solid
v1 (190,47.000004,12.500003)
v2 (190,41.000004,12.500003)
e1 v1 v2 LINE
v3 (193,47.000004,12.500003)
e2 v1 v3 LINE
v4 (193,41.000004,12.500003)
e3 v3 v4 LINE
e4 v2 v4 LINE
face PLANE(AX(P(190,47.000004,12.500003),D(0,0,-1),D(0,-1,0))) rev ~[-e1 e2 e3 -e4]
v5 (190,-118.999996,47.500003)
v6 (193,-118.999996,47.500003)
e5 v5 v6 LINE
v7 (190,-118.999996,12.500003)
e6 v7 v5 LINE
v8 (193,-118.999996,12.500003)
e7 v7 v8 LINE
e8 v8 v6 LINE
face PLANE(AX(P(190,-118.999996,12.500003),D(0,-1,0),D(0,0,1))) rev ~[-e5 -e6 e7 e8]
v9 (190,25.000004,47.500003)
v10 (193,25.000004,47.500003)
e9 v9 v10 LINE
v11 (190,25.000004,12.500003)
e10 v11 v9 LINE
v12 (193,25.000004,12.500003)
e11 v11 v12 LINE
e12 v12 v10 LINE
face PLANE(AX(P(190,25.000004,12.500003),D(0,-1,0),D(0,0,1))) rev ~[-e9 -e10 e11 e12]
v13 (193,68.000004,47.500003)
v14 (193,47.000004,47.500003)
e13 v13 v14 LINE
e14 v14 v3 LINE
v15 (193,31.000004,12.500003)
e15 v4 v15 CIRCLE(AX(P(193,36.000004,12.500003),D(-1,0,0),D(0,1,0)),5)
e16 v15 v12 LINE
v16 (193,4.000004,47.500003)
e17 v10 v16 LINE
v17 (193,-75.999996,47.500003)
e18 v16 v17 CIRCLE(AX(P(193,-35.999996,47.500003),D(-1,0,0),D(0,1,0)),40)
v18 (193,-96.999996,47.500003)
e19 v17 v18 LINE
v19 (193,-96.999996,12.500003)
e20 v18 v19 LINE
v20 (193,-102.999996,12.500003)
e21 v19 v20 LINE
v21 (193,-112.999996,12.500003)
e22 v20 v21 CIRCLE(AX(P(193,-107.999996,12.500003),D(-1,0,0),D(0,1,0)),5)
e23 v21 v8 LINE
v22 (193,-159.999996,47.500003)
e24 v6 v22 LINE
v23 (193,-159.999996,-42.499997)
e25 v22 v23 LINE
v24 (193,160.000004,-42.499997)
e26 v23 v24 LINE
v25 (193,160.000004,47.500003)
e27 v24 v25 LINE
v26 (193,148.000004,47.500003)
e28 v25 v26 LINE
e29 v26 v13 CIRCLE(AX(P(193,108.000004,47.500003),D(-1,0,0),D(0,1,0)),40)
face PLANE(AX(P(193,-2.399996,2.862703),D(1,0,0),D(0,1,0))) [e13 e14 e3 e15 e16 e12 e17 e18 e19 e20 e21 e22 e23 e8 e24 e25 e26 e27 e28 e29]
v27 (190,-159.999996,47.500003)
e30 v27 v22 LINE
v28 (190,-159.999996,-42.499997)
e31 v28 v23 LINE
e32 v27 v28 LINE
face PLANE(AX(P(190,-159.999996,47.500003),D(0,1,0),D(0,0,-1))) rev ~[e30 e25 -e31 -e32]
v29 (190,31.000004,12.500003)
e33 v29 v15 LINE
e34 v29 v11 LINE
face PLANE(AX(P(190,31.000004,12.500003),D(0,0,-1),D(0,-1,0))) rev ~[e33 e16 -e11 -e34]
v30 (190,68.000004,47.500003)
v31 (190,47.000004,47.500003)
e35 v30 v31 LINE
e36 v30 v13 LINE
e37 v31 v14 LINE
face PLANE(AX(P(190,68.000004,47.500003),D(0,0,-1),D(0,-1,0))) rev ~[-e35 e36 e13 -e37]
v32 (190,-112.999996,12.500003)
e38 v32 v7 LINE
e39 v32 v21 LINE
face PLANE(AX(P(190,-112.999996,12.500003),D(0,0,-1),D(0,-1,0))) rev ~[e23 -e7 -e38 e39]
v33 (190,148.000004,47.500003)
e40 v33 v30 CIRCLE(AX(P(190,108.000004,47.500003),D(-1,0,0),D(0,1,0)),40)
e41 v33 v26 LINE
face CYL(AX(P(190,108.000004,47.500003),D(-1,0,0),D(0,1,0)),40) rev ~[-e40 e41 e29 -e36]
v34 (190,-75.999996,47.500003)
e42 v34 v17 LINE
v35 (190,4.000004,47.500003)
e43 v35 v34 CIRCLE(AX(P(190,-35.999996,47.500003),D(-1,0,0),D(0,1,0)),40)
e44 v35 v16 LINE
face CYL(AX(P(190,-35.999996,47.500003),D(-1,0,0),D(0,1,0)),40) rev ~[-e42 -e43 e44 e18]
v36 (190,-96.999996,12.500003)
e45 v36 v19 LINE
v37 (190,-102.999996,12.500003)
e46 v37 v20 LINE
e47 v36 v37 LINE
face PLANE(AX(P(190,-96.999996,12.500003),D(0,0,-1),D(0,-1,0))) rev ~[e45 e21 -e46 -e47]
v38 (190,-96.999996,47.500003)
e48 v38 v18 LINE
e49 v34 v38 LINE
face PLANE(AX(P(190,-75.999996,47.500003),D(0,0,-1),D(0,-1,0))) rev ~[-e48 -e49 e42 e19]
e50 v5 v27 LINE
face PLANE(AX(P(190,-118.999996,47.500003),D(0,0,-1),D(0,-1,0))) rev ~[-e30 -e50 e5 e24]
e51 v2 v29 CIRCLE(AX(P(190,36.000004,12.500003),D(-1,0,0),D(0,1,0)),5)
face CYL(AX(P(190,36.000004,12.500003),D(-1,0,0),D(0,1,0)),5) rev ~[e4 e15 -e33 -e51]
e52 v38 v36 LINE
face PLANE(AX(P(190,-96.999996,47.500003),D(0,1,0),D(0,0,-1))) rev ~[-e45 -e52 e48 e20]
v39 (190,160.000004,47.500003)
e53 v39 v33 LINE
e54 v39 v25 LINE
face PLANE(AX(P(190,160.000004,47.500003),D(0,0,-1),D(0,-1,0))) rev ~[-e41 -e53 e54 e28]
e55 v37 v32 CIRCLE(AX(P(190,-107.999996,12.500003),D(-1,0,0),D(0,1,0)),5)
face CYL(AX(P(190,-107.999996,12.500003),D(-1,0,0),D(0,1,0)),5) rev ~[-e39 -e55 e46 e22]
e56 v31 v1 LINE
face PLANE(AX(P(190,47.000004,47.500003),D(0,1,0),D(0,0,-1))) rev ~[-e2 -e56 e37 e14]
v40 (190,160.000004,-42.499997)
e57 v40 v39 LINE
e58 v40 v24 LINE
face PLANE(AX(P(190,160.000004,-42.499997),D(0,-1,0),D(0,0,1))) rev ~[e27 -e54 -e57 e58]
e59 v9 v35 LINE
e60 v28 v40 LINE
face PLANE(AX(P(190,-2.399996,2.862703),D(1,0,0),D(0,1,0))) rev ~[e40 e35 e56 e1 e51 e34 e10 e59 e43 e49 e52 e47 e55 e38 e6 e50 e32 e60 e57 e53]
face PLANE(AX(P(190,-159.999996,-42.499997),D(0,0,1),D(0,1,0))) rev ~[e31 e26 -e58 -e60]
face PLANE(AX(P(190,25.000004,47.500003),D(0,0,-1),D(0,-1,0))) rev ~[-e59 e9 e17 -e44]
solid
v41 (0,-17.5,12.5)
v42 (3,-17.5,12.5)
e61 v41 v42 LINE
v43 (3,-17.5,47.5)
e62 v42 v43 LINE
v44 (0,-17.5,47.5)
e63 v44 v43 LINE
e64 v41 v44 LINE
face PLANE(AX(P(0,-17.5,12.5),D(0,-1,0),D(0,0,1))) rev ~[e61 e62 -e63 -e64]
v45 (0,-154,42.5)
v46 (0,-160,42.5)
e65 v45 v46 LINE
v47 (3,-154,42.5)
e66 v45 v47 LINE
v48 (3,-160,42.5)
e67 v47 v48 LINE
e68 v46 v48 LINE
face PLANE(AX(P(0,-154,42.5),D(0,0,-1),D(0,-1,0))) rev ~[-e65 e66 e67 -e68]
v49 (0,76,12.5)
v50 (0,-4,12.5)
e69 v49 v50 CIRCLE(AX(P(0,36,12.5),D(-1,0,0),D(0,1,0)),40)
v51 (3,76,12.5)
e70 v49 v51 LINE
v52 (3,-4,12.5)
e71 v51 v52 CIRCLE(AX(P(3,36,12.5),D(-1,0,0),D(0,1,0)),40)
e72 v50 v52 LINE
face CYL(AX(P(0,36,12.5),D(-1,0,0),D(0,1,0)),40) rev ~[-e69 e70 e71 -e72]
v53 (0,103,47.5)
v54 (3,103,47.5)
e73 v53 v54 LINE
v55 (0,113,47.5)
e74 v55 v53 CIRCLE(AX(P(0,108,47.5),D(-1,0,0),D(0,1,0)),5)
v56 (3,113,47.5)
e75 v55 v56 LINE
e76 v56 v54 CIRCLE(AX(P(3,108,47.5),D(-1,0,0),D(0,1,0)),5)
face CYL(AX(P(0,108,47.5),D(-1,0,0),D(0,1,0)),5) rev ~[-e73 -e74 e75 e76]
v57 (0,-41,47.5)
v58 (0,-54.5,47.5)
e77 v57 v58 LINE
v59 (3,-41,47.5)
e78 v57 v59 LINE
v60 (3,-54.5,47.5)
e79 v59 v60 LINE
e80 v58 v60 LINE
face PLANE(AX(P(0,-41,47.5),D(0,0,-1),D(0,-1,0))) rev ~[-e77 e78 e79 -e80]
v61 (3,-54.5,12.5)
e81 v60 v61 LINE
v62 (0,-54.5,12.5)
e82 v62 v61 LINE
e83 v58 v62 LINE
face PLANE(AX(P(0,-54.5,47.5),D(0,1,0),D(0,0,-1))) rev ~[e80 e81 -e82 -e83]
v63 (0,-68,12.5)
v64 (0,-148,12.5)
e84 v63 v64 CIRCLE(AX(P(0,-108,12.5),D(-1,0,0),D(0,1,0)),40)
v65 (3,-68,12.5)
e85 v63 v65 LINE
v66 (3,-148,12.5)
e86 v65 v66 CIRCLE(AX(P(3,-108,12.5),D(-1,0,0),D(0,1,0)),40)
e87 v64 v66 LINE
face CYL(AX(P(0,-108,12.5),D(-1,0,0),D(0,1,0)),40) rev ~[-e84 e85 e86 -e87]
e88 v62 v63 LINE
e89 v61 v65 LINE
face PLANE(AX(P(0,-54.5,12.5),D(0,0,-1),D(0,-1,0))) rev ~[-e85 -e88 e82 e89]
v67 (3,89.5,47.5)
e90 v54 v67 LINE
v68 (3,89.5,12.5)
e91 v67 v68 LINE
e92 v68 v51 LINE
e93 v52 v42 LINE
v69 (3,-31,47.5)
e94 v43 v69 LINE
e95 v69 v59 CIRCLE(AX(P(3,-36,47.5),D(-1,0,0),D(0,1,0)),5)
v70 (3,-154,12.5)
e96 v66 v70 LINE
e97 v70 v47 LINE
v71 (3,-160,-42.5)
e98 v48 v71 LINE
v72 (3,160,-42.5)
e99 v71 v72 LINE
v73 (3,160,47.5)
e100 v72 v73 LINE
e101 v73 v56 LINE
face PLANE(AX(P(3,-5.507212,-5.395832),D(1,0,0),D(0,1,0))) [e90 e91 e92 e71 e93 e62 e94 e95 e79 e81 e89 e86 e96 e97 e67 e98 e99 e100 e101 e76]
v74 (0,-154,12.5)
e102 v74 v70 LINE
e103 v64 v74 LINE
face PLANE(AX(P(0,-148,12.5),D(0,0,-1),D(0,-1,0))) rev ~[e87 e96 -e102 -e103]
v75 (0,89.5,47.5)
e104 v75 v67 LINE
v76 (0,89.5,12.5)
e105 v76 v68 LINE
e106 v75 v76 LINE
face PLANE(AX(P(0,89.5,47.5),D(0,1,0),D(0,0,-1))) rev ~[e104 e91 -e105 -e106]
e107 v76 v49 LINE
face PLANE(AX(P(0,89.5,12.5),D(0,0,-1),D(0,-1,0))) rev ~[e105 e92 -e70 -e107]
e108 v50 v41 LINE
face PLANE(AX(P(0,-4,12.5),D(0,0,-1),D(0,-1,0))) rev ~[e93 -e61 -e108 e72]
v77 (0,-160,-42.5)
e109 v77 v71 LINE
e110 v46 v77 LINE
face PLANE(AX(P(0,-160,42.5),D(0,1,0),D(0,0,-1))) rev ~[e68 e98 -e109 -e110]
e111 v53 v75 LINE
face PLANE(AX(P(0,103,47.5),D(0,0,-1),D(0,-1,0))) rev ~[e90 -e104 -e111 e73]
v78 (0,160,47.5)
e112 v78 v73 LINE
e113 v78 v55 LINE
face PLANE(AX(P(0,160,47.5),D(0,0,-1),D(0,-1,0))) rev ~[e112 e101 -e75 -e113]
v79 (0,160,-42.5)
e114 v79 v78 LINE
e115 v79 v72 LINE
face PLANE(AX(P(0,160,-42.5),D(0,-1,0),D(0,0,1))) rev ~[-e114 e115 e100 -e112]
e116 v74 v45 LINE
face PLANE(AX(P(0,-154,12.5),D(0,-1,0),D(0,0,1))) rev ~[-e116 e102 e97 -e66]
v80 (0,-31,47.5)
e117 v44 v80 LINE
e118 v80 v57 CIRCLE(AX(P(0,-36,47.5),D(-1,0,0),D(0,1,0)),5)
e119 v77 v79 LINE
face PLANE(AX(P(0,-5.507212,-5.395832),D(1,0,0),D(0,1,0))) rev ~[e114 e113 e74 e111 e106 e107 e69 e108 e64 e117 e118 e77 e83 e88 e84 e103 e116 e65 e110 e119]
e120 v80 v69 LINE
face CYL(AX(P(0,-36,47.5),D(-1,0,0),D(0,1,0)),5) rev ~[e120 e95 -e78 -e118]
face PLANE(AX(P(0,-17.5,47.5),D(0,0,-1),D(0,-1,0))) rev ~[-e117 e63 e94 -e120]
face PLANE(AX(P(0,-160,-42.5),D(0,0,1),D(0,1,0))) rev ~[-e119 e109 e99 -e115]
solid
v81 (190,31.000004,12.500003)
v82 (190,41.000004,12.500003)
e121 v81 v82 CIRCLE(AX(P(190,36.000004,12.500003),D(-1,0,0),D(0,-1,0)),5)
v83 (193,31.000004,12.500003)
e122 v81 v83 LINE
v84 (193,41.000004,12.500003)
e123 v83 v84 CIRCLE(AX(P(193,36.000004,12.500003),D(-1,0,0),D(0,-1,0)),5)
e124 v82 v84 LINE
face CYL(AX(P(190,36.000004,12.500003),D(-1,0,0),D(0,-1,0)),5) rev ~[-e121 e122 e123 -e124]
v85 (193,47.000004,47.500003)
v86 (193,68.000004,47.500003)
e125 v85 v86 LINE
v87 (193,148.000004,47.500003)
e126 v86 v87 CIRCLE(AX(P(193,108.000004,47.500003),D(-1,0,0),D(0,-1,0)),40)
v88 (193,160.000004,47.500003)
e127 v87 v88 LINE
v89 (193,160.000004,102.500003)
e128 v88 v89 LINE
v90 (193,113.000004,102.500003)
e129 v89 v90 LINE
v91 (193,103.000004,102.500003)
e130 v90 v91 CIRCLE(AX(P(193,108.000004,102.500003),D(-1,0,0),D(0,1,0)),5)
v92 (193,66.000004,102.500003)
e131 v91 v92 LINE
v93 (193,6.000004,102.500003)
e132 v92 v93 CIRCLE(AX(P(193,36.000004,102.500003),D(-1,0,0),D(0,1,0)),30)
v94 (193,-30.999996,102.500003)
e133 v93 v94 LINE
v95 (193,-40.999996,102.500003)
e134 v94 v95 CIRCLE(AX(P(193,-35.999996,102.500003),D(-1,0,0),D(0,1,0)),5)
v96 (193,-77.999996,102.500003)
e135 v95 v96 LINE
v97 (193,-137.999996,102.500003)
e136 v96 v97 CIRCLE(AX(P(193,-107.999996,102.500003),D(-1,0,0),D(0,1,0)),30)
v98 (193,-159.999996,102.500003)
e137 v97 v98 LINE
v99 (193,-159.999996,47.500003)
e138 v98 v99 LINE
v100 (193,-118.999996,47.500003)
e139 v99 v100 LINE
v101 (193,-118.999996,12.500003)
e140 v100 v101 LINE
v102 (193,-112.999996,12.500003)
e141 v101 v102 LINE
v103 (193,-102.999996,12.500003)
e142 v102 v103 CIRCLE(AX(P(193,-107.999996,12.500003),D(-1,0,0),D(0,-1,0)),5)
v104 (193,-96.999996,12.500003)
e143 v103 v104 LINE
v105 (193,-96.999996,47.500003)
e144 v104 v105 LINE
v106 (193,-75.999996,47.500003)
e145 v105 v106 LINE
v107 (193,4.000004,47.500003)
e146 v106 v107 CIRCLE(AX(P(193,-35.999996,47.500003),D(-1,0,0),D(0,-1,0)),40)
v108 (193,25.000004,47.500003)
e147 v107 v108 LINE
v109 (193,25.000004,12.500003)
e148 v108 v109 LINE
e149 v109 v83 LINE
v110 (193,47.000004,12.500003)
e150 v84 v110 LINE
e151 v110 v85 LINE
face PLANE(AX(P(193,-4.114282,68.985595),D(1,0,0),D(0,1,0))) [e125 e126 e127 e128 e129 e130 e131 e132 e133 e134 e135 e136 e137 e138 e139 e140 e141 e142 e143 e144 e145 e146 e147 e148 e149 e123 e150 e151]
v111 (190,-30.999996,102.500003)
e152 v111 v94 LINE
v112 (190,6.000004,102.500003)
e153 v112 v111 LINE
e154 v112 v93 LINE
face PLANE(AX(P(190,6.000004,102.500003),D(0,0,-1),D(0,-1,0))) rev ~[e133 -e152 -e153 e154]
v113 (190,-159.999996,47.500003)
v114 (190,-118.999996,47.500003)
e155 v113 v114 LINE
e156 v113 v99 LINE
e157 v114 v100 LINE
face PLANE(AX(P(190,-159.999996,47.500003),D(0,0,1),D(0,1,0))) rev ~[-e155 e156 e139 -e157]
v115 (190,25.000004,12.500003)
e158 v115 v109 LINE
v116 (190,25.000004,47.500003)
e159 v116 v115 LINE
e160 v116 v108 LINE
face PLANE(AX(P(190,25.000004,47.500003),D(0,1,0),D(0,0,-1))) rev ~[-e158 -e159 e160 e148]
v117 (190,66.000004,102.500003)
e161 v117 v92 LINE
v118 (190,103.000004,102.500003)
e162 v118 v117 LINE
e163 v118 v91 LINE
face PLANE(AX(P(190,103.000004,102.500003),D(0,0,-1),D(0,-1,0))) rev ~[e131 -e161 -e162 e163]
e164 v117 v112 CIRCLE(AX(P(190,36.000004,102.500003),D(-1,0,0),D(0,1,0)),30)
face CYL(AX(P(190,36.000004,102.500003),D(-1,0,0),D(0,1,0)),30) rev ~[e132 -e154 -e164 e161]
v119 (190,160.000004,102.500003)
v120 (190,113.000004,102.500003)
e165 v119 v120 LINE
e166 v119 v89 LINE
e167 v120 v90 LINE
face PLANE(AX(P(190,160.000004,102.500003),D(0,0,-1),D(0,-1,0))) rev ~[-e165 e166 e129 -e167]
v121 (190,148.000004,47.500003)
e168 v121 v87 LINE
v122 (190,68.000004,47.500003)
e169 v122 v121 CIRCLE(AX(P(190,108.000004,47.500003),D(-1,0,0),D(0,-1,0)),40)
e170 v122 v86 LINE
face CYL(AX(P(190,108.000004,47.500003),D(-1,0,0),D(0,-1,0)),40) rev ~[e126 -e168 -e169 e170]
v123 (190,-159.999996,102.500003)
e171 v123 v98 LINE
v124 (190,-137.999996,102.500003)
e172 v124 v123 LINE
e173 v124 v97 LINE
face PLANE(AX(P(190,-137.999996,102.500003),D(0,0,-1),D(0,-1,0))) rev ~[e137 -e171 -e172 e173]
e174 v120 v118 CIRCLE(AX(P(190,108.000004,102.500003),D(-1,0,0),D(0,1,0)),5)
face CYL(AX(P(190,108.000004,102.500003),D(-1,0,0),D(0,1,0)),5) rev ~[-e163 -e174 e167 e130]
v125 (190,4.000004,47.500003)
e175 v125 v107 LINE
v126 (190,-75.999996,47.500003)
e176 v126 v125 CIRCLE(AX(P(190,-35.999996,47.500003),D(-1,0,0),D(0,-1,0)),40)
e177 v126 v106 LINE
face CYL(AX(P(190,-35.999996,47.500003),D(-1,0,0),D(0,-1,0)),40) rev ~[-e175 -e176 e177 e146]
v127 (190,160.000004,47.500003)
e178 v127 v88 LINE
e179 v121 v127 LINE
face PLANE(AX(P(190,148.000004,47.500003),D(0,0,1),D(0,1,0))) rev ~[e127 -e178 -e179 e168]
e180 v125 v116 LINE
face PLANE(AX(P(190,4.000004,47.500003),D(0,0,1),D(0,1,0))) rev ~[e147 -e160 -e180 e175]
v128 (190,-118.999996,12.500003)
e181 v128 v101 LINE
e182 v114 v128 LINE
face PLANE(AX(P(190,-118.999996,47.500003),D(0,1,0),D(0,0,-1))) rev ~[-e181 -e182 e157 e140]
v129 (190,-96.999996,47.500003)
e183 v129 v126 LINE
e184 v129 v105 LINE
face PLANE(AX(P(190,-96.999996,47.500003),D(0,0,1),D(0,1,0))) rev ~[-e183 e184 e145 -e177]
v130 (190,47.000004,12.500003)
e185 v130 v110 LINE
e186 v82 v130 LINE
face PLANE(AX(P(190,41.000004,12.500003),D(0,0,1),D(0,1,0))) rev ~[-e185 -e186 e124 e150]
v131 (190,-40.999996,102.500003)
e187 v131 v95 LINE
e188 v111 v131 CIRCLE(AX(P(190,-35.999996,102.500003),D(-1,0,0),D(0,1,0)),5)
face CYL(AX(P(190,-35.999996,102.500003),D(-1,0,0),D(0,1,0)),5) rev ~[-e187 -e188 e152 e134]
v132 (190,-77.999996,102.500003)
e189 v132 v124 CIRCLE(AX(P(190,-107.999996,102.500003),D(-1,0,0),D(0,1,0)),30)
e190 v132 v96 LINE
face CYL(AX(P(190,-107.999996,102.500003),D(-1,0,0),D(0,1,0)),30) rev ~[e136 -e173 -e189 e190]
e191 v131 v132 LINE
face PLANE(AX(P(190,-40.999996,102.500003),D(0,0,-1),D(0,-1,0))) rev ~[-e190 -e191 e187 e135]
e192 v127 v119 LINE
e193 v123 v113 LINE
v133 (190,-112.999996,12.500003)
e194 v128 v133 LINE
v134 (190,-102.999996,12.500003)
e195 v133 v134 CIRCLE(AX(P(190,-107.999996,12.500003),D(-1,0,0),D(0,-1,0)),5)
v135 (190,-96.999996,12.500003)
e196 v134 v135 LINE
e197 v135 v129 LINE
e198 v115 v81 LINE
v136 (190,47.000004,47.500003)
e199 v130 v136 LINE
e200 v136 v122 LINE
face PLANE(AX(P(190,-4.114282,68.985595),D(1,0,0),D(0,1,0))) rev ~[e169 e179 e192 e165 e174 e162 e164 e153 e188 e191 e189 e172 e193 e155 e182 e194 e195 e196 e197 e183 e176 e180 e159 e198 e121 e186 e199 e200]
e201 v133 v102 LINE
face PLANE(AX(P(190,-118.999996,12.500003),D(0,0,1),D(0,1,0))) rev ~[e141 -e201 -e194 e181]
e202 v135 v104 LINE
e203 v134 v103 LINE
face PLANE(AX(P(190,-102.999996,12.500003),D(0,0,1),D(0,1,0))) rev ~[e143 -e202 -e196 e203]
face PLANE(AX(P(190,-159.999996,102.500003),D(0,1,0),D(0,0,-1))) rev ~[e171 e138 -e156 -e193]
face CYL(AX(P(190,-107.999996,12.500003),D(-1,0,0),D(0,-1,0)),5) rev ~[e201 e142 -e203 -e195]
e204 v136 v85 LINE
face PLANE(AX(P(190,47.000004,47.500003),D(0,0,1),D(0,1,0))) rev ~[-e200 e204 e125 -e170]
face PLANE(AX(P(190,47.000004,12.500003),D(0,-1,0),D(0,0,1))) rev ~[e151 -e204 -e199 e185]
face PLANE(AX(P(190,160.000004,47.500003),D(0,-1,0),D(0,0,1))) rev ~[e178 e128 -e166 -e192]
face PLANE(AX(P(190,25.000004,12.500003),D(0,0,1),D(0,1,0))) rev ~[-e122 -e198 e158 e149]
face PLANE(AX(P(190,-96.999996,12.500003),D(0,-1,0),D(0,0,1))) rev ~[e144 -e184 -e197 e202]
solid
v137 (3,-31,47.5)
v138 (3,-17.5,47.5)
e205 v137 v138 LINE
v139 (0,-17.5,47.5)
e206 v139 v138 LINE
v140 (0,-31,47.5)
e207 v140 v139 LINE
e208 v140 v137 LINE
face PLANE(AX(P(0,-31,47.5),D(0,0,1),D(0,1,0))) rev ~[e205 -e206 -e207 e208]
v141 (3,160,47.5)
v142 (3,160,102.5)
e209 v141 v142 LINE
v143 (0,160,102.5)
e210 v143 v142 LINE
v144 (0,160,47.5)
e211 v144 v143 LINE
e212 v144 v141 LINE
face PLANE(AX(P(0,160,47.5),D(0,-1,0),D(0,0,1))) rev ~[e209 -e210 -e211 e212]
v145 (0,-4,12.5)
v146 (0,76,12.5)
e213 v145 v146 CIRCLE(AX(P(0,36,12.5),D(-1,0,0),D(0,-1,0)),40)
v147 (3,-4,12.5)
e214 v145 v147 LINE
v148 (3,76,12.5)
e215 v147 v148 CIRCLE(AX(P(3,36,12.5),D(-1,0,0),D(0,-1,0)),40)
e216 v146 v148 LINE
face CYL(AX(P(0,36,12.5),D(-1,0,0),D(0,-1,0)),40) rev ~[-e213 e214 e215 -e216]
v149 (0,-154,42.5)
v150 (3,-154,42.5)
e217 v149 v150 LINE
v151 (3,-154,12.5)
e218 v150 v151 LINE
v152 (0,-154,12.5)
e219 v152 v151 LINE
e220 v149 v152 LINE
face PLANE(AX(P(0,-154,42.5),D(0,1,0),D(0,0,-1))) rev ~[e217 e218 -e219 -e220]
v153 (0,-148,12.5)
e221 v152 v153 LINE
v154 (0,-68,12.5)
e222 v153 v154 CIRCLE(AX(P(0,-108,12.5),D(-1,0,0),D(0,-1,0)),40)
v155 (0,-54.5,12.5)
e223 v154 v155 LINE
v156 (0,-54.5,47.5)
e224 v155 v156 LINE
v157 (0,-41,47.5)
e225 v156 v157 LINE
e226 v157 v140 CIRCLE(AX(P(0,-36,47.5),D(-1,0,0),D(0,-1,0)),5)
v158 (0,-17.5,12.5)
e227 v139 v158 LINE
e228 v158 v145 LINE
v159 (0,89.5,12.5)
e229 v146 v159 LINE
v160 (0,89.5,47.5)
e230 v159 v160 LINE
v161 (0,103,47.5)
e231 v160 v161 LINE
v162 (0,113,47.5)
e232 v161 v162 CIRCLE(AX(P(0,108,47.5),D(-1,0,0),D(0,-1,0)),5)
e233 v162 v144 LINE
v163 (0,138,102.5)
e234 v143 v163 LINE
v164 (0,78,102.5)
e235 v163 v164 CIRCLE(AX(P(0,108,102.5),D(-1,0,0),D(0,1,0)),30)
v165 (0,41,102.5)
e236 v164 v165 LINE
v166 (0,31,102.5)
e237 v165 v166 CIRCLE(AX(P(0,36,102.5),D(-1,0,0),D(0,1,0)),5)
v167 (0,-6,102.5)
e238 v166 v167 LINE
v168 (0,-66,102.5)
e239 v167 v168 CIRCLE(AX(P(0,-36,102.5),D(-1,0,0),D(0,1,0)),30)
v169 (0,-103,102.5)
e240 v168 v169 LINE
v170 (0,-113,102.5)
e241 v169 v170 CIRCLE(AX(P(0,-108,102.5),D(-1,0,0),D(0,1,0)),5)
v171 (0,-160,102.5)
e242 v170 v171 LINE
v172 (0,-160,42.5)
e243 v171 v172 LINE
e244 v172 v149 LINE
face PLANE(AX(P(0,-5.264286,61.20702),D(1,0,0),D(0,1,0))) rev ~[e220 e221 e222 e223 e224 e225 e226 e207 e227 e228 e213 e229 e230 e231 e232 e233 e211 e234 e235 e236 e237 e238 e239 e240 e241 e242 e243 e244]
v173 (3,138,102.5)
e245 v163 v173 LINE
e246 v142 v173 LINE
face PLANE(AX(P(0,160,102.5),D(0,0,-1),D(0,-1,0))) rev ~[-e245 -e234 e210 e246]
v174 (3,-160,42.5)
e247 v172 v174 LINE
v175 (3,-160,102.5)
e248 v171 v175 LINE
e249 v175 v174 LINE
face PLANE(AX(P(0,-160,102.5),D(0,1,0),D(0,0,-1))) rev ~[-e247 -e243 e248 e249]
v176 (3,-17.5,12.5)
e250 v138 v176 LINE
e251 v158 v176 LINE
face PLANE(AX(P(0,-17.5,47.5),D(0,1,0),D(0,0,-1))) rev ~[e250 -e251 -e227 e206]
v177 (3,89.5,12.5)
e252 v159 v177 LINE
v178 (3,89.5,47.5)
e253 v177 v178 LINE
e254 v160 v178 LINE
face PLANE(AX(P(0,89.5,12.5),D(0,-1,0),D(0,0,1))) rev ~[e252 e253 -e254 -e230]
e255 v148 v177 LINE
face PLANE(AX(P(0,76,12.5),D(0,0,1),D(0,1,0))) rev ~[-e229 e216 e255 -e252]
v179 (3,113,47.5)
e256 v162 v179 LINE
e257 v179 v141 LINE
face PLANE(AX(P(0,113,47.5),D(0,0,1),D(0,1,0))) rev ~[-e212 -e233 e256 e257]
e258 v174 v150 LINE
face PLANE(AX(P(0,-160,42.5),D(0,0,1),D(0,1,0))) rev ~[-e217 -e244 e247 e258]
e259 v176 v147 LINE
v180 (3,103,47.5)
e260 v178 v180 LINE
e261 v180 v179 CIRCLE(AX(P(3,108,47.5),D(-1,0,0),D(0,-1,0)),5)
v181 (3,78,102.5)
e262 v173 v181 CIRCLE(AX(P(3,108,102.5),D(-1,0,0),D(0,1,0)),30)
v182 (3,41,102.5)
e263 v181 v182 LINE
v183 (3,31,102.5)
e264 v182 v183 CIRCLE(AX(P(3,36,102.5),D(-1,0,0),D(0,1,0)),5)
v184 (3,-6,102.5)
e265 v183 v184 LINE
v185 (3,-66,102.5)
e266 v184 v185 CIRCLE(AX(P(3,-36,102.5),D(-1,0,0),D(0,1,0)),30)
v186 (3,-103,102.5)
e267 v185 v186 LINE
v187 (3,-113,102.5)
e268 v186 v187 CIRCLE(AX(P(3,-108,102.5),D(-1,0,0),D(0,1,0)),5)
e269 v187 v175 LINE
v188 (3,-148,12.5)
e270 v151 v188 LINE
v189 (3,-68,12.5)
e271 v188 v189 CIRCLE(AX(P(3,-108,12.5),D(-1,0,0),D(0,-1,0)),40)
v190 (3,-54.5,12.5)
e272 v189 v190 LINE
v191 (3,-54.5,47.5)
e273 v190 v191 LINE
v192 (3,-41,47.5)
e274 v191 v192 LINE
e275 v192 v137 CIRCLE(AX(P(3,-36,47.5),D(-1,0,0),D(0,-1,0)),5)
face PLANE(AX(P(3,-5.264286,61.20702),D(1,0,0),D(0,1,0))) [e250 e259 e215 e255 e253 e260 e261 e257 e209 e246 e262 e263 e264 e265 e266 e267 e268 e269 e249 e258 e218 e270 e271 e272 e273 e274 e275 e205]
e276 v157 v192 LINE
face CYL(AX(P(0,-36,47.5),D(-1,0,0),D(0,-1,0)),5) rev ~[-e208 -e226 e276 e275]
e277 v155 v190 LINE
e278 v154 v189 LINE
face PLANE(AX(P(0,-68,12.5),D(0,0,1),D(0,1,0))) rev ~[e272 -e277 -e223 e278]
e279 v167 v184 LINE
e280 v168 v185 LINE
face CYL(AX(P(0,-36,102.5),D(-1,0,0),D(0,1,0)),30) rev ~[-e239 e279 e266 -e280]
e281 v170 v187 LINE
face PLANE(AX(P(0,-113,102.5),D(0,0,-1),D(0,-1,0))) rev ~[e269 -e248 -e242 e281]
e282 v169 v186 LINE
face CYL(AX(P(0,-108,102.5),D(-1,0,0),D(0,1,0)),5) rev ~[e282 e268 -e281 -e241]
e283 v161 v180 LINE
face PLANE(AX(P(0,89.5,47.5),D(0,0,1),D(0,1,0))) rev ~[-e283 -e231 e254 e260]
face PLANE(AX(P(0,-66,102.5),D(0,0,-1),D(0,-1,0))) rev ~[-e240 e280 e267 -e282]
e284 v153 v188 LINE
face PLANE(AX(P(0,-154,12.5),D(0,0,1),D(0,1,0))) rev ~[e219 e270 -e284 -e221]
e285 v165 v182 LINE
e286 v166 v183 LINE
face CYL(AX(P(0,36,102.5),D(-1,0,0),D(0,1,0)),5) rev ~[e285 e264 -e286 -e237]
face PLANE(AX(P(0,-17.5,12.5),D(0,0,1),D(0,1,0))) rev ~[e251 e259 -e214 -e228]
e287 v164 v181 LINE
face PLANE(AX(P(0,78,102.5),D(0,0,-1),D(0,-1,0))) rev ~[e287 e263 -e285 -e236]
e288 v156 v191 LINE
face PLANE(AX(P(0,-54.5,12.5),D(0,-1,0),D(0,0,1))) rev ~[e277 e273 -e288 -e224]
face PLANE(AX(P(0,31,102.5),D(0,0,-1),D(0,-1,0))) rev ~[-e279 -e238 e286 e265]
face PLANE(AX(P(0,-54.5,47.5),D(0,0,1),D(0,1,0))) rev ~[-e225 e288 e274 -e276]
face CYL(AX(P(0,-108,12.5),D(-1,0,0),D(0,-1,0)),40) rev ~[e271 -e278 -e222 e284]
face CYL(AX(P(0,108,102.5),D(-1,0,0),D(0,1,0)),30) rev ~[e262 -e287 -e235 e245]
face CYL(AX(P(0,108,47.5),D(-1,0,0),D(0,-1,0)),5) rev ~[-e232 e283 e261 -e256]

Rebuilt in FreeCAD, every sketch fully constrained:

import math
import FreeCAD as App
import Part
import Sketcher

V = App.Vector

doc = App.newDocument("Part")
params = doc.addObject("Spreadsheet::Sheet", "Params")
for row, (alias, value) in enumerate([
    ("sketch1_radius", "5 mm"),
    ("sketch1_radius2", "40 mm"),
    ("sketch1_width", "320 mm"),
    ("sketch1_width2", "47 mm"),
    ("sketch1_width3", "6 mm"),
    ("pad1_length", "3 mm"),
    ("sketch2_radius", "30 mm"),
    ("sketch2_radius2", "5 mm"),
    ("sketch2_radius3", "40 mm"),
    ("sketch2_width", "47 mm"),
    ("sketch2_width2", "37 mm"),
    ("pad2_length", "3 mm"),
    ("sketch3_radius", "40 mm"),
    ("sketch3_radius2", "5 mm"),
    ("sketch3_width", "320 mm"),
    ("sketch3_width2", "12 mm"),
    ("sketch3_width3", "21 mm"),
    ("pad3_length", "3 mm"),
    ("sketch4_radius", "5 mm"),
    ("sketch4_radius2", "30 mm"),
    ("sketch4_radius3", "40 mm"),
    ("sketch4_width", "12 mm"),
    ("sketch4_width2", "37 mm"),
    ("pad4_length", "3 mm"),
], start=1):
    params.set(f"A{row}", alias)
    params.set(f"B{row}", "=" + value)
    params.setAlias(f"B{row}", alias)

body = doc.addObject("PartDesign::Body", "Body")

sketch1 = body.newObject("Sketcher::SketchObject", "Sketch")
sketch1.AttachmentSupport = (doc.getObject("YZ_Plane"), [""])
sketch1.MapMode = "FlatFace"
sketch1.addGeometry([
    Part.LineSegment(V(-160, -42, 0), V(160, -42, 0)),
    Part.LineSegment(V(160, -42, 0), V(160, 48, 0)),
    Part.LineSegment(V(160, 48, 0), V(113, 48, 0)),
    Part.ArcOfCircle(Part.Circle(V(108, 48, 0), V(0, 0, 1), 5), math.radians(180), math.radians(360)),
    Part.LineSegment(V(103, 48, 0), V(90, 48, 0)),
    Part.LineSegment(V(90, 48, 0), V(90, 12, 0)),
    Part.LineSegment(V(90, 12, 0), V(76, 12, 0)),
    Part.ArcOfCircle(Part.Circle(V(36, 12, 0), V(0, 0, 1), 40), math.radians(180), math.radians(360)),
    Part.LineSegment(V(-4, 12, 0), V(-18, 12, 0)),
    Part.LineSegment(V(-18, 12, 0), V(-18, 48, 0)),
    Part.LineSegment(V(-18, 48, 0), V(-31, 48, 0)),
    Part.ArcOfCircle(Part.Circle(V(-36, 48, 0), V(0, 0, 1), 5), math.radians(180), math.radians(360)),
    Part.LineSegment(V(-41, 48, 0), V(-54, 48, 0)),
    Part.LineSegment(V(-54, 48, 0), V(-54, 12, 0)),
    Part.LineSegment(V(-54, 12, 0), V(-68, 12, 0)),
    Part.ArcOfCircle(Part.Circle(V(-108, 12, 0), V(0, 0, 1), 40), math.radians(180), math.radians(360)),
    Part.LineSegment(V(-148, 12, 0), V(-154, 12, 0)),
    Part.LineSegment(V(-154, 12, 0), V(-154, 42, 0)),
    Part.LineSegment(V(-154, 42, 0), V(-160, 42, 0)),
    Part.LineSegment(V(-160, 42, 0), V(-160, -42, 0)),
], False)
sketch1.addConstraint([
    Sketcher.Constraint("Coincident", 0, 2, 1, 1),
    Sketcher.Constraint("Coincident", 1, 2, 2, 1),
    Sketcher.Constraint("Coincident", 2, 2, 3, 2),
    Sketcher.Constraint("Coincident", 3, 1, 4, 1),
    Sketcher.Constraint("Coincident", 4, 2, 5, 1),
    Sketcher.Constraint("Coincident", 5, 2, 6, 1),
    Sketcher.Constraint("Coincident", 6, 2, 7, 2),
    Sketcher.Constraint("Coincident", 7, 1, 8, 1),
    Sketcher.Constraint("Coincident", 8, 2, 9, 1),
    Sketcher.Constraint("Coincident", 9, 2, 10, 1),
    Sketcher.Constraint("Coincident", 10, 2, 11, 2),
    Sketcher.Constraint("Coincident", 11, 1, 12, 1),
    Sketcher.Constraint("Coincident", 12, 2, 13, 1),
    Sketcher.Constraint("Coincident", 13, 2, 14, 1),
    Sketcher.Constraint("Coincident", 14, 2, 15, 2),
    Sketcher.Constraint("Coincident", 15, 1, 16, 1),
    Sketcher.Constraint("Coincident", 16, 2, 17, 1),
    Sketcher.Constraint("Coincident", 17, 2, 18, 1),
    Sketcher.Constraint("Coincident", 18, 2, 19, 1),
    Sketcher.Constraint("Coincident", 19, 2, 0, 1),
    Sketcher.Constraint("Horizontal", 0),
    Sketcher.Constraint("Vertical", 1),
    Sketcher.Constraint("Horizontal", 2),
    Sketcher.Constraint("Horizontal", 4),
    Sketcher.Constraint("Vertical", 5),
    Sketcher.Constraint("Horizontal", 6),
    Sketcher.Constraint("Horizontal", 8),
    Sketcher.Constraint("Vertical", 9),
    Sketcher.Constraint("Horizontal", 10),
    Sketcher.Constraint("Horizontal", 12),
    Sketcher.Constraint("Vertical", 13),
    Sketcher.Constraint("Horizontal", 14),
    Sketcher.Constraint("Horizontal", 16),
    Sketcher.Constraint("Vertical", 17),
    Sketcher.Constraint("Horizontal", 18),
    Sketcher.Constraint("Vertical", 19),
    Sketcher.Constraint("Equal", 3, 11),
    Sketcher.Constraint("Equal", 7, 15),
    Sketcher.Constraint("Symmetric", 0, 2, 18, 2, -1, 1),
    Sketcher.Constraint("Horizontal", 3, 3, 11, 3),
    Sketcher.Constraint("Horizontal", 7, 3, 15, 3),
    Sketcher.Constraint("Horizontal", 11, 3, 1, 2),
    Sketcher.Constraint("Horizontal", 2, 2, 3, 1),
    Sketcher.Constraint("Horizontal", 15, 3, 5, 2),
    Sketcher.Constraint("Horizontal", 6, 2, 7, 1),
    Sketcher.Constraint("Horizontal", 4, 2, 9, 2),
    Sketcher.Constraint("Horizontal", 10, 2, 11, 1),
    Sketcher.Constraint("Horizontal", 8, 2, 13, 2),
    Sketcher.Constraint("Horizontal", 14, 2, 15, 1),
    Sketcher.Constraint("Equal", 4, 6),
    Sketcher.Constraint("Equal", 6, 8),
    Sketcher.Constraint("Equal", 8, 10),
    Sketcher.Constraint("Equal", 10, 12),
    Sketcher.Constraint("Equal", 12, 14),
    Sketcher.Constraint("Equal", 16, 18),
    Sketcher.Constraint("Radius", 3, 5.0),
    Sketcher.Constraint("Radius", 7, 40.0),
    Sketcher.Constraint("DistanceX", 0, 1, 0, 2, 320.0),
    Sketcher.Constraint("DistanceX", 2, 2, 2, 1, 47.0),
    Sketcher.Constraint("DistanceX", 16, 2, 16, 1, 6.0),
    Sketcher.Constraint("DistanceY", 1, 1, 1, 2, 90.0),
    Sketcher.Constraint("DistanceY", 5, 2, 5, 1, 35.0),
    Sketcher.Constraint("DistanceY", 17, 1, 17, 2, 30.0),
])
sketch1.setExpression("Constraints[55]", "Params.sketch1_radius")
sketch1.setExpression("Constraints[56]", "Params.sketch1_radius2")
sketch1.setExpression("Constraints[57]", "Params.sketch1_width")
sketch1.setExpression("Constraints[58]", "Params.sketch1_width2")
sketch1.setExpression("Constraints[59]", "Params.sketch1_width3")
pad1 = body.newObject("PartDesign::Pad", "Pad")
pad1.Profile = sketch1
pad1.setExpression("Length", "Params.pad1_length")
body2 = doc.addObject("PartDesign::Body", "Body001")

sketch2 = body2.newObject("Sketcher::SketchObject", "Sketch001")
sketch2.AttachmentSupport = (doc.getObject("YZ_Plane001"), [""])
sketch2.MapMode = "FlatFace"
sketch2.addGeometry([
    Part.LineSegment(V(113, 48, 0), V(160, 48, 0)),
    Part.LineSegment(V(160, 48, 0), V(160, 102, 0)),
    Part.LineSegment(V(160, 102, 0), V(138, 102, 0)),
    Part.ArcOfCircle(Part.Circle(V(108, 102, 0), V(0, 0, 1), 30), math.radians(180), math.radians(360)),
    Part.LineSegment(V(78, 102, 0), V(41, 102, 0)),
    Part.ArcOfCircle(Part.Circle(V(36, 102, 0), V(0, 0, 1), 5), math.radians(180), math.radians(360)),
    Part.LineSegment(V(31, 102, 0), V(-6, 102, 0)),
    Part.ArcOfCircle(Part.Circle(V(-36, 102, 0), V(0, 0, 1), 30), math.radians(180), math.radians(360)),
    Part.LineSegment(V(-66, 102, 0), V(-103, 102, 0)),
    Part.ArcOfCircle(Part.Circle(V(-108, 102, 0), V(0, 0, 1), 5), math.radians(180), math.radians(360)),
    Part.LineSegment(V(-113, 102, 0), V(-160, 102, 0)),
    Part.LineSegment(V(-160, 102, 0), V(-160, 42, 0)),
    Part.LineSegment(V(-160, 42, 0), V(-154, 42, 0)),
    Part.LineSegment(V(-154, 42, 0), V(-154, 12, 0)),
    Part.LineSegment(V(-154, 12, 0), V(-148, 12, 0)),
    Part.ArcOfCircle(Part.Circle(V(-108, 12, 0), V(0, 0, 1), 40), math.radians(0), math.radians(180)),
    Part.LineSegment(V(-68, 12, 0), V(-54, 12, 0)),
    Part.LineSegment(V(-54, 12, 0), V(-54, 48, 0)),
    Part.LineSegment(V(-54, 48, 0), V(-41, 48, 0)),
    Part.ArcOfCircle(Part.Circle(V(-36, 48, 0), V(0, 0, 1), 5), math.radians(0), math.radians(180)),
    Part.LineSegment(V(-31, 48, 0), V(-18, 48, 0)),
    Part.LineSegment(V(-18, 48, 0), V(-18, 12, 0)),
    Part.LineSegment(V(-18, 12, 0), V(-4, 12, 0)),
    Part.ArcOfCircle(Part.Circle(V(36, 12, 0), V(0, 0, 1), 40), math.radians(0), math.radians(180)),
    Part.LineSegment(V(76, 12, 0), V(90, 12, 0)),
    Part.LineSegment(V(90, 12, 0), V(90, 48, 0)),
    Part.LineSegment(V(90, 48, 0), V(103, 48, 0)),
    Part.ArcOfCircle(Part.Circle(V(108, 48, 0), V(0, 0, 1), 5), math.radians(0), math.radians(180)),
], False)
sketch2.addConstraint([
    Sketcher.Constraint("Coincident", 0, 2, 1, 1),
    Sketcher.Constraint("Coincident", 1, 2, 2, 1),
    Sketcher.Constraint("Coincident", 2, 2, 3, 2),
    Sketcher.Constraint("Coincident", 3, 1, 4, 1),
    Sketcher.Constraint("Coincident", 4, 2, 5, 2),
    Sketcher.Constraint("Coincident", 5, 1, 6, 1),
    Sketcher.Constraint("Coincident", 6, 2, 7, 2),
    Sketcher.Constraint("Coincident", 7, 1, 8, 1),
    Sketcher.Constraint("Coincident", 8, 2, 9, 2),
    Sketcher.Constraint("Coincident", 9, 1, 10, 1),
    Sketcher.Constraint("Coincident", 10, 2, 11, 1),
    Sketcher.Constraint("Coincident", 11, 2, 12, 1),
    Sketcher.Constraint("Coincident", 12, 2, 13, 1),
    Sketcher.Constraint("Coincident", 13, 2, 14, 1),
    Sketcher.Constraint("Coincident", 14, 2, 15, 2),
    Sketcher.Constraint("Coincident", 15, 1, 16, 1),
    Sketcher.Constraint("Coincident", 16, 2, 17, 1),
    Sketcher.Constraint("Coincident", 17, 2, 18, 1),
    Sketcher.Constraint("Coincident", 18, 2, 19, 2),
    Sketcher.Constraint("Coincident", 19, 1, 20, 1),
    Sketcher.Constraint("Coincident", 20, 2, 21, 1),
    Sketcher.Constraint("Coincident", 21, 2, 22, 1),
    Sketcher.Constraint("Coincident", 22, 2, 23, 2),
    Sketcher.Constraint("Coincident", 23, 1, 24, 1),
    Sketcher.Constraint("Coincident", 24, 2, 25, 1),
    Sketcher.Constraint("Coincident", 25, 2, 26, 1),
    Sketcher.Constraint("Coincident", 26, 2, 27, 2),
    Sketcher.Constraint("Coincident", 27, 1, 0, 1),
    Sketcher.Constraint("Horizontal", 0),
    Sketcher.Constraint("Vertical", 1),
    Sketcher.Constraint("Horizontal", 2),
    Sketcher.Constraint("Horizontal", 4),
    Sketcher.Constraint("Horizontal", 6),
    Sketcher.Constraint("Horizontal", 8),
    Sketcher.Constraint("Horizontal", 10),
    Sketcher.Constraint("Vertical", 11),
    Sketcher.Constraint("Horizontal", 12),
    Sketcher.Constraint("Vertical", 13),
    Sketcher.Constraint("Horizontal", 14),
    Sketcher.Constraint("Horizontal", 16),
    Sketcher.Constraint("Vertical", 17),
    Sketcher.Constraint("Horizontal", 18),
    Sketcher.Constraint("Horizontal", 20),
    Sketcher.Constraint("Vertical", 21),
    Sketcher.Constraint("Horizontal", 22),
    Sketcher.Constraint("Horizontal", 24),
    Sketcher.Constraint("Vertical", 25),
    Sketcher.Constraint("Horizontal", 26),
    Sketcher.Constraint("Equal", 3, 7),
    Sketcher.Constraint("Equal", 5, 9),
    Sketcher.Constraint("Equal", 9, 19),
    Sketcher.Constraint("Equal", 15, 23),
    Sketcher.Constraint("Equal", 19, 27),
    Sketcher.Constraint("Symmetric", 5, 3, 7, 3, -2),
    Sketcher.Constraint("Symmetric", 3, 3, 9, 3, -2),
    Sketcher.Constraint("Symmetric", 1, 2, 10, 2, -2),
    Sketcher.Constraint("Horizontal", 3, 3, 5, 3),
    Sketcher.Constraint("Horizontal", 15, 3, 23, 3),
    Sketcher.Constraint("Horizontal", 19, 3, 27, 3),
    Sketcher.Constraint("Horizontal", 27, 3, 0, 2),
    Sketcher.Constraint("Horizontal", 9, 3, 1, 2),
    Sketcher.Constraint("Horizontal", 2, 2, 3, 1),
    Sketcher.Constraint("Horizontal", 4, 2, 5, 1),
    Sketcher.Constraint("Horizontal", 6, 2, 7, 1),
    Sketcher.Constraint("Horizontal", 23, 3, 13, 2),
    Sketcher.Constraint("Horizontal", 14, 2, 15, 1),
    Sketcher.Constraint("Horizontal", 0, 2, 17, 2),
    Sketcher.Constraint("Horizontal", 18, 2, 19, 1),
    Sketcher.Constraint("Horizontal", 16, 2, 21, 2),
    Sketcher.Constraint("Horizontal", 22, 2, 23, 1),
    Sketcher.Constraint("Horizontal", 20, 2, 25, 2),
    Sketcher.Constraint("Vertical", 9, 3, 15, 3),
    Sketcher.Constraint("Vertical", 7, 3, 19, 3),
    Sketcher.Constraint("Vertical", 5, 3, 23, 3),
    Sketcher.Constraint("Vertical", 3, 3, 27, 3),
    Sketcher.Constraint("Equal", 4, 6),
    Sketcher.Constraint("Equal", 12, 14),
    Sketcher.Constraint("Equal", 16, 18),
    Sketcher.Constraint("Equal", 18, 20),
    Sketcher.Constraint("Equal", 22, 24),
    Sketcher.Constraint("Radius", 3, 30.0),
    Sketcher.Constraint("Radius", 5, 5.0),
    Sketcher.Constraint("Radius", 15, 40.0),
    Sketcher.Constraint("DistanceX", 0, 1, 0, 2, 47.0),
    Sketcher.Constraint("DistanceX", 4, 2, 4, 1, 37.0),
    Sketcher.Constraint("DistanceY", 1, 1, 1, 2, 55.0),
    Sketcher.Constraint("DistanceY", 11, 2, 11, 1, 60.0),
    Sketcher.Constraint("DistanceY", 13, 2, 13, 1, 30.0),
    Sketcher.Constraint("DistanceY", -1, 1, 3, 3, 102.5),
])
sketch2.setExpression("Constraints[80]", "Params.sketch2_radius")
sketch2.setExpression("Constraints[81]", "Params.sketch2_radius2")
sketch2.setExpression("Constraints[82]", "Params.sketch2_radius3")
sketch2.setExpression("Constraints[83]", "Params.sketch2_width")
sketch2.setExpression("Constraints[84]", "Params.sketch2_width2")
pad2 = body2.newObject("PartDesign::Pad", "Pad001")
pad2.Profile = sketch2
pad2.setExpression("Length", "Params.pad2_length")
body3 = doc.addObject("PartDesign::Body", "Body002")

sketch3 = body3.newObject("Sketcher::SketchObject", "Sketch002")
sketch3.AttachmentSupport = (doc.getObject("YZ_Plane002"), [""])
sketch3.MapMode = "FlatFace"
sketch3.AttachmentOffset = App.Placement(V(0, 0, 190), App.Rotation())
sketch3.addGeometry([
    Part.LineSegment(V(-160, -42, 0), V(160, -42, 0)),
    Part.LineSegment(V(160, -42, 0), V(160, 48, 0)),
    Part.LineSegment(V(160, 48, 0), V(148, 48, 0)),
    Part.ArcOfCircle(Part.Circle(V(108, 48, 0), V(0, 0, 1), 40), math.radians(180), math.radians(360)),
    Part.LineSegment(V(68, 48, 0), V(47, 48, 0)),
    Part.LineSegment(V(47, 48, 0), V(47, 13, 0)),
    Part.LineSegment(V(47, 13, 0), V(41, 13, 0)),
    Part.ArcOfCircle(Part.Circle(V(36, 13, 0), V(0, 0, 1), 5), math.radians(180), math.radians(360)),
    Part.LineSegment(V(31, 13, 0), V(25, 13, 0)),
    Part.LineSegment(V(25, 13, 0), V(25, 48, 0)),
    Part.LineSegment(V(25, 48, 0), V(4, 48, 0)),
    Part.ArcOfCircle(Part.Circle(V(-36, 48, 0), V(0, 0, 1), 40), math.radians(180), math.radians(360)),
    Part.LineSegment(V(-76, 48, 0), V(-97, 48, 0)),
    Part.LineSegment(V(-97, 48, 0), V(-97, 13, 0)),
    Part.LineSegment(V(-97, 13, 0), V(-103, 13, 0)),
    Part.ArcOfCircle(Part.Circle(V(-108, 13, 0), V(0, 0, 1), 5), math.radians(180), math.radians(360)),
    Part.LineSegment(V(-113, 13, 0), V(-119, 13, 0)),
    Part.LineSegment(V(-119, 13, 0), V(-119, 48, 0)),
    Part.LineSegment(V(-119, 48, 0), V(-160, 48, 0)),
    Part.LineSegment(V(-160, 48, 0), V(-160, -42, 0)),
], False)
sketch3.addConstraint([
    Sketcher.Constraint("Coincident", 0, 2, 1, 1),
    Sketcher.Constraint("Coincident", 1, 2, 2, 1),
    Sketcher.Constraint("Coincident", 2, 2, 3, 2),
    Sketcher.Constraint("Coincident", 3, 1, 4, 1),
    Sketcher.Constraint("Coincident", 4, 2, 5, 1),
    Sketcher.Constraint("Coincident", 5, 2, 6, 1),
    Sketcher.Constraint("Coincident", 6, 2, 7, 2),
    Sketcher.Constraint("Coincident", 7, 1, 8, 1),
    Sketcher.Constraint("Coincident", 8, 2, 9, 1),
    Sketcher.Constraint("Coincident", 9, 2, 10, 1),
    Sketcher.Constraint("Coincident", 10, 2, 11, 2),
    Sketcher.Constraint("Coincident", 11, 1, 12, 1),
    Sketcher.Constraint("Coincident", 12, 2, 13, 1),
    Sketcher.Constraint("Coincident", 13, 2, 14, 1),
    Sketcher.Constraint("Coincident", 14, 2, 15, 2),
    Sketcher.Constraint("Coincident", 15, 1, 16, 1),
    Sketcher.Constraint("Coincident", 16, 2, 17, 1),
    Sketcher.Constraint("Coincident", 17, 2, 18, 1),
    Sketcher.Constraint("Coincident", 18, 2, 19, 1),
    Sketcher.Constraint("Coincident", 19, 2, 0, 1),
    Sketcher.Constraint("Horizontal", 0),
    Sketcher.Constraint("Vertical", 1),
    Sketcher.Constraint("Horizontal", 2),
    Sketcher.Constraint("Horizontal", 4),
    Sketcher.Constraint("Vertical", 5),
    Sketcher.Constraint("Horizontal", 6),
    Sketcher.Constraint("Horizontal", 8),
    Sketcher.Constraint("Vertical", 9),
    Sketcher.Constraint("Horizontal", 10),
    Sketcher.Constraint("Horizontal", 12),
    Sketcher.Constraint("Vertical", 13),
    Sketcher.Constraint("Horizontal", 14),
    Sketcher.Constraint("Horizontal", 16),
    Sketcher.Constraint("Vertical", 17),
    Sketcher.Constraint("Horizontal", 18),
    Sketcher.Constraint("Vertical", 19),
    Sketcher.Constraint("Equal", 3, 11),
    Sketcher.Constraint("Equal", 7, 15),
    Sketcher.Constraint("Symmetric", 1, 2, 18, 2, -2),
    Sketcher.Constraint("Horizontal", 3, 3, 11, 3),
    Sketcher.Constraint("Horizontal", 7, 3, 15, 3),
    Sketcher.Constraint("Horizontal", 11, 3, 1, 2),
    Sketcher.Constraint("Horizontal", 2, 2, 3, 1),
    Sketcher.Constraint("Horizontal", 15, 3, 5, 2),
    Sketcher.Constraint("Horizontal", 6, 2, 7, 1),
    Sketcher.Constraint("Horizontal", 4, 2, 9, 2),
    Sketcher.Constraint("Horizontal", 10, 2, 11, 1),
    Sketcher.Constraint("Horizontal", 8, 2, 13, 2),
    Sketcher.Constraint("Horizontal", 14, 2, 15, 1),
    Sketcher.Constraint("Equal", 6, 8),
    Sketcher.Constraint("Equal", 4, 10),
    Sketcher.Constraint("Equal", 10, 12),
    Sketcher.Constraint("Equal", 8, 14),
    Sketcher.Constraint("Equal", 14, 16),
    Sketcher.Constraint("Radius", 3, 40.0),
    Sketcher.Constraint("Radius", 7, 5.0),
    Sketcher.Constraint("DistanceX", 0, 1, 0, 2, 320.0),
    Sketcher.Constraint("DistanceX", 2, 2, 2, 1, 12.0),
    Sketcher.Constraint("DistanceX", 4, 2, 4, 1, 21.0),
    Sketcher.Constraint("DistanceX", 6, 2, 6, 1, 6.0),
    Sketcher.Constraint("DistanceY", 1, 1, 1, 2, 90.0),
    Sketcher.Constraint("DistanceY", 5, 2, 5, 1, 35.0),
    Sketcher.Constraint("DistanceY", -1, 1, 3, 3, 47.500003),
])
sketch3.setExpression("Constraints[54]", "Params.sketch3_radius")
sketch3.setExpression("Constraints[55]", "Params.sketch3_radius2")
sketch3.setExpression("Constraints[56]", "Params.sketch3_width")
sketch3.setExpression("Constraints[57]", "Params.sketch3_width2")
sketch3.setExpression("Constraints[58]", "Params.sketch3_width3")
pad3 = body3.newObject("PartDesign::Pad", "Pad002")
pad3.Profile = sketch3
pad3.setExpression("Length", "Params.pad3_length")
body4 = doc.addObject("PartDesign::Body", "Body003")

sketch4 = body4.newObject("Sketcher::SketchObject", "Sketch003")
sketch4.AttachmentSupport = (doc.getObject("YZ_Plane003"), [""])
sketch4.MapMode = "FlatFace"
sketch4.AttachmentOffset = App.Placement(V(0, 0, 190), App.Rotation())
sketch4.addGeometry([
    Part.LineSegment(V(148, 48, 0), V(160, 48, 0)),
    Part.LineSegment(V(160, 48, 0), V(160, 103, 0)),
    Part.LineSegment(V(160, 103, 0), V(113, 103, 0)),
    Part.ArcOfCircle(Part.Circle(V(108, 103, 0), V(0, 0, 1), 5), math.radians(180), math.radians(360)),
    Part.LineSegment(V(103, 103, 0), V(66, 103, 0)),
    Part.ArcOfCircle(Part.Circle(V(36, 103, 0), V(0, 0, 1), 30), math.radians(180), math.radians(360)),
    Part.LineSegment(V(6, 103, 0), V(-31, 103, 0)),
    Part.ArcOfCircle(Part.Circle(V(-36, 103, 0), V(0, 0, 1), 5), math.radians(180), math.radians(360)),
    Part.LineSegment(V(-41, 103, 0), V(-78, 103, 0)),
    Part.ArcOfCircle(Part.Circle(V(-108, 103, 0), V(0, 0, 1), 30), math.radians(180), math.radians(360)),
    Part.LineSegment(V(-138, 103, 0), V(-160, 103, 0)),
    Part.LineSegment(V(-160, 103, 0), V(-160, 48, 0)),
    Part.LineSegment(V(-160, 48, 0), V(-119, 48, 0)),
    Part.LineSegment(V(-119, 48, 0), V(-119, 13, 0)),
    Part.LineSegment(V(-119, 13, 0), V(-113, 13, 0)),
    Part.ArcOfCircle(Part.Circle(V(-108, 13, 0), V(0, 0, 1), 5), math.radians(0), math.radians(180)),
    Part.LineSegment(V(-103, 13, 0), V(-97, 13, 0)),
    Part.LineSegment(V(-97, 13, 0), V(-97, 48, 0)),
    Part.LineSegment(V(-97, 48, 0), V(-76, 48, 0)),
    Part.ArcOfCircle(Part.Circle(V(-36, 48, 0), V(0, 0, 1), 40), math.radians(0), math.radians(180)),
    Part.LineSegment(V(4, 48, 0), V(25, 48, 0)),
    Part.LineSegment(V(25, 48, 0), V(25, 13, 0)),
    Part.LineSegment(V(25, 13, 0), V(31, 13, 0)),
    Part.ArcOfCircle(Part.Circle(V(36, 13, 0), V(0, 0, 1), 5), math.radians(0), math.radians(180)),
    Part.LineSegment(V(41, 13, 0), V(47, 13, 0)),
    Part.LineSegment(V(47, 13, 0), V(47, 48, 0)),
    Part.LineSegment(V(47, 48, 0), V(68, 48, 0)),
    Part.ArcOfCircle(Part.Circle(V(108, 48, 0), V(0, 0, 1), 40), math.radians(0), math.radians(180)),
], False)
sketch4.addConstraint([
    Sketcher.Constraint("Coincident", 0, 2, 1, 1),
    Sketcher.Constraint("Coincident", 1, 2, 2, 1),
    Sketcher.Constraint("Coincident", 2, 2, 3, 2),
    Sketcher.Constraint("Coincident", 3, 1, 4, 1),
    Sketcher.Constraint("Coincident", 4, 2, 5, 2),
    Sketcher.Constraint("Coincident", 5, 1, 6, 1),
    Sketcher.Constraint("Coincident", 6, 2, 7, 2),
    Sketcher.Constraint("Coincident", 7, 1, 8, 1),
    Sketcher.Constraint("Coincident", 8, 2, 9, 2),
    Sketcher.Constraint("Coincident", 9, 1, 10, 1),
    Sketcher.Constraint("Coincident", 10, 2, 11, 1),
    Sketcher.Constraint("Coincident", 11, 2, 12, 1),
    Sketcher.Constraint("Coincident", 12, 2, 13, 1),
    Sketcher.Constraint("Coincident", 13, 2, 14, 1),
    Sketcher.Constraint("Coincident", 14, 2, 15, 2),
    Sketcher.Constraint("Coincident", 15, 1, 16, 1),
    Sketcher.Constraint("Coincident", 16, 2, 17, 1),
    Sketcher.Constraint("Coincident", 17, 2, 18, 1),
    Sketcher.Constraint("Coincident", 18, 2, 19, 2),
    Sketcher.Constraint("Coincident", 19, 1, 20, 1),
    Sketcher.Constraint("Coincident", 20, 2, 21, 1),
    Sketcher.Constraint("Coincident", 21, 2, 22, 1),
    Sketcher.Constraint("Coincident", 22, 2, 23, 2),
    Sketcher.Constraint("Coincident", 23, 1, 24, 1),
    Sketcher.Constraint("Coincident", 24, 2, 25, 1),
    Sketcher.Constraint("Coincident", 25, 2, 26, 1),
    Sketcher.Constraint("Coincident", 26, 2, 27, 2),
    Sketcher.Constraint("Coincident", 27, 1, 0, 1),
    Sketcher.Constraint("Horizontal", 0),
    Sketcher.Constraint("Vertical", 1),
    Sketcher.Constraint("Horizontal", 2),
    Sketcher.Constraint("Horizontal", 4),
    Sketcher.Constraint("Horizontal", 6),
    Sketcher.Constraint("Horizontal", 8),
    Sketcher.Constraint("Horizontal", 10),
    Sketcher.Constraint("Vertical", 11),
    Sketcher.Constraint("Horizontal", 12),
    Sketcher.Constraint("Vertical", 13),
    Sketcher.Constraint("Horizontal", 14),
    Sketcher.Constraint("Horizontal", 16),
    Sketcher.Constraint("Vertical", 17),
    Sketcher.Constraint("Horizontal", 18),
    Sketcher.Constraint("Horizontal", 20),
    Sketcher.Constraint("Vertical", 21),
    Sketcher.Constraint("Horizontal", 22),
    Sketcher.Constraint("Horizontal", 24),
    Sketcher.Constraint("Vertical", 25),
    Sketcher.Constraint("Horizontal", 26),
    Sketcher.Constraint("Equal", 3, 7),
    Sketcher.Constraint("Equal", 5, 9),
    Sketcher.Constraint("Equal", 7, 15),
    Sketcher.Constraint("Equal", 15, 23),
    Sketcher.Constraint("Equal", 19, 27),
    Sketcher.Constraint("Symmetric", 5, 3, 7, 3, -2),
    Sketcher.Constraint("Symmetric", 3, 3, 9, 3, -2),
    Sketcher.Constraint("Symmetric", 1, 2, 10, 2, -2),
    Sketcher.Constraint("Horizontal", 3, 3, 5, 3),
    Sketcher.Constraint("Horizontal", 15, 3, 23, 3),
    Sketcher.Constraint("Horizontal", 19, 3, 27, 3),
    Sketcher.Constraint("Horizontal", 27, 3, 0, 2),
    Sketcher.Constraint("Horizontal", 9, 3, 1, 2),
    Sketcher.Constraint("Horizontal", 2, 2, 3, 1),
    Sketcher.Constraint("Horizontal", 4, 2, 5, 1),
    Sketcher.Constraint("Horizontal", 6, 2, 7, 1),
    Sketcher.Constraint("Horizontal", 0, 2, 11, 2),
    Sketcher.Constraint("Horizontal", 23, 3, 13, 2),
    Sketcher.Constraint("Horizontal", 14, 2, 15, 1),
    Sketcher.Constraint("Horizontal", 12, 2, 17, 2),
    Sketcher.Constraint("Horizontal", 18, 2, 19, 1),
    Sketcher.Constraint("Horizontal", 16, 2, 21, 2),
    Sketcher.Constraint("Horizontal", 22, 2, 23, 1),
    Sketcher.Constraint("Horizontal", 20, 2, 25, 2),
    Sketcher.Constraint("Vertical", 9, 3, 15, 3),
    Sketcher.Constraint("Vertical", 7, 3, 19, 3),
    Sketcher.Constraint("Vertical", 5, 3, 23, 3),
    Sketcher.Constraint("Vertical", 3, 3, 27, 3),
    Sketcher.Constraint("Equal", 4, 6),
    Sketcher.Constraint("Equal", 14, 16),
    Sketcher.Constraint("Equal", 18, 20),
    Sketcher.Constraint("Equal", 22, 24),
    Sketcher.Constraint("Radius", 3, 5.0),
    Sketcher.Constraint("Radius", 5, 30.0),
    Sketcher.Constraint("Radius", 19, 40.0),
    Sketcher.Constraint("DistanceX", 0, 1, 0, 2, 12.0),
    Sketcher.Constraint("DistanceX", 4, 2, 4, 1, 37.0),
    Sketcher.Constraint("DistanceX", 12, 1, 12, 2, 41.0),
    Sketcher.Constraint("DistanceY", 1, 1, 1, 2, 55.0),
    Sketcher.Constraint("DistanceY", 13, 2, 13, 1, 35.0),
    Sketcher.Constraint("DistanceY", -1, 1, 3, 3, 102.500003),
])
sketch4.setExpression("Constraints[80]", "Params.sketch4_radius")
sketch4.setExpression("Constraints[81]", "Params.sketch4_radius2")
sketch4.setExpression("Constraints[82]", "Params.sketch4_radius3")
sketch4.setExpression("Constraints[83]", "Params.sketch4_width")
sketch4.setExpression("Constraints[84]", "Params.sketch4_width2")
pad4 = body4.newObject("PartDesign::Pad", "Pad003")
pad4.Profile = sketch4
pad4.setExpression("Length", "Params.pad4_length")

doc.recompute()
